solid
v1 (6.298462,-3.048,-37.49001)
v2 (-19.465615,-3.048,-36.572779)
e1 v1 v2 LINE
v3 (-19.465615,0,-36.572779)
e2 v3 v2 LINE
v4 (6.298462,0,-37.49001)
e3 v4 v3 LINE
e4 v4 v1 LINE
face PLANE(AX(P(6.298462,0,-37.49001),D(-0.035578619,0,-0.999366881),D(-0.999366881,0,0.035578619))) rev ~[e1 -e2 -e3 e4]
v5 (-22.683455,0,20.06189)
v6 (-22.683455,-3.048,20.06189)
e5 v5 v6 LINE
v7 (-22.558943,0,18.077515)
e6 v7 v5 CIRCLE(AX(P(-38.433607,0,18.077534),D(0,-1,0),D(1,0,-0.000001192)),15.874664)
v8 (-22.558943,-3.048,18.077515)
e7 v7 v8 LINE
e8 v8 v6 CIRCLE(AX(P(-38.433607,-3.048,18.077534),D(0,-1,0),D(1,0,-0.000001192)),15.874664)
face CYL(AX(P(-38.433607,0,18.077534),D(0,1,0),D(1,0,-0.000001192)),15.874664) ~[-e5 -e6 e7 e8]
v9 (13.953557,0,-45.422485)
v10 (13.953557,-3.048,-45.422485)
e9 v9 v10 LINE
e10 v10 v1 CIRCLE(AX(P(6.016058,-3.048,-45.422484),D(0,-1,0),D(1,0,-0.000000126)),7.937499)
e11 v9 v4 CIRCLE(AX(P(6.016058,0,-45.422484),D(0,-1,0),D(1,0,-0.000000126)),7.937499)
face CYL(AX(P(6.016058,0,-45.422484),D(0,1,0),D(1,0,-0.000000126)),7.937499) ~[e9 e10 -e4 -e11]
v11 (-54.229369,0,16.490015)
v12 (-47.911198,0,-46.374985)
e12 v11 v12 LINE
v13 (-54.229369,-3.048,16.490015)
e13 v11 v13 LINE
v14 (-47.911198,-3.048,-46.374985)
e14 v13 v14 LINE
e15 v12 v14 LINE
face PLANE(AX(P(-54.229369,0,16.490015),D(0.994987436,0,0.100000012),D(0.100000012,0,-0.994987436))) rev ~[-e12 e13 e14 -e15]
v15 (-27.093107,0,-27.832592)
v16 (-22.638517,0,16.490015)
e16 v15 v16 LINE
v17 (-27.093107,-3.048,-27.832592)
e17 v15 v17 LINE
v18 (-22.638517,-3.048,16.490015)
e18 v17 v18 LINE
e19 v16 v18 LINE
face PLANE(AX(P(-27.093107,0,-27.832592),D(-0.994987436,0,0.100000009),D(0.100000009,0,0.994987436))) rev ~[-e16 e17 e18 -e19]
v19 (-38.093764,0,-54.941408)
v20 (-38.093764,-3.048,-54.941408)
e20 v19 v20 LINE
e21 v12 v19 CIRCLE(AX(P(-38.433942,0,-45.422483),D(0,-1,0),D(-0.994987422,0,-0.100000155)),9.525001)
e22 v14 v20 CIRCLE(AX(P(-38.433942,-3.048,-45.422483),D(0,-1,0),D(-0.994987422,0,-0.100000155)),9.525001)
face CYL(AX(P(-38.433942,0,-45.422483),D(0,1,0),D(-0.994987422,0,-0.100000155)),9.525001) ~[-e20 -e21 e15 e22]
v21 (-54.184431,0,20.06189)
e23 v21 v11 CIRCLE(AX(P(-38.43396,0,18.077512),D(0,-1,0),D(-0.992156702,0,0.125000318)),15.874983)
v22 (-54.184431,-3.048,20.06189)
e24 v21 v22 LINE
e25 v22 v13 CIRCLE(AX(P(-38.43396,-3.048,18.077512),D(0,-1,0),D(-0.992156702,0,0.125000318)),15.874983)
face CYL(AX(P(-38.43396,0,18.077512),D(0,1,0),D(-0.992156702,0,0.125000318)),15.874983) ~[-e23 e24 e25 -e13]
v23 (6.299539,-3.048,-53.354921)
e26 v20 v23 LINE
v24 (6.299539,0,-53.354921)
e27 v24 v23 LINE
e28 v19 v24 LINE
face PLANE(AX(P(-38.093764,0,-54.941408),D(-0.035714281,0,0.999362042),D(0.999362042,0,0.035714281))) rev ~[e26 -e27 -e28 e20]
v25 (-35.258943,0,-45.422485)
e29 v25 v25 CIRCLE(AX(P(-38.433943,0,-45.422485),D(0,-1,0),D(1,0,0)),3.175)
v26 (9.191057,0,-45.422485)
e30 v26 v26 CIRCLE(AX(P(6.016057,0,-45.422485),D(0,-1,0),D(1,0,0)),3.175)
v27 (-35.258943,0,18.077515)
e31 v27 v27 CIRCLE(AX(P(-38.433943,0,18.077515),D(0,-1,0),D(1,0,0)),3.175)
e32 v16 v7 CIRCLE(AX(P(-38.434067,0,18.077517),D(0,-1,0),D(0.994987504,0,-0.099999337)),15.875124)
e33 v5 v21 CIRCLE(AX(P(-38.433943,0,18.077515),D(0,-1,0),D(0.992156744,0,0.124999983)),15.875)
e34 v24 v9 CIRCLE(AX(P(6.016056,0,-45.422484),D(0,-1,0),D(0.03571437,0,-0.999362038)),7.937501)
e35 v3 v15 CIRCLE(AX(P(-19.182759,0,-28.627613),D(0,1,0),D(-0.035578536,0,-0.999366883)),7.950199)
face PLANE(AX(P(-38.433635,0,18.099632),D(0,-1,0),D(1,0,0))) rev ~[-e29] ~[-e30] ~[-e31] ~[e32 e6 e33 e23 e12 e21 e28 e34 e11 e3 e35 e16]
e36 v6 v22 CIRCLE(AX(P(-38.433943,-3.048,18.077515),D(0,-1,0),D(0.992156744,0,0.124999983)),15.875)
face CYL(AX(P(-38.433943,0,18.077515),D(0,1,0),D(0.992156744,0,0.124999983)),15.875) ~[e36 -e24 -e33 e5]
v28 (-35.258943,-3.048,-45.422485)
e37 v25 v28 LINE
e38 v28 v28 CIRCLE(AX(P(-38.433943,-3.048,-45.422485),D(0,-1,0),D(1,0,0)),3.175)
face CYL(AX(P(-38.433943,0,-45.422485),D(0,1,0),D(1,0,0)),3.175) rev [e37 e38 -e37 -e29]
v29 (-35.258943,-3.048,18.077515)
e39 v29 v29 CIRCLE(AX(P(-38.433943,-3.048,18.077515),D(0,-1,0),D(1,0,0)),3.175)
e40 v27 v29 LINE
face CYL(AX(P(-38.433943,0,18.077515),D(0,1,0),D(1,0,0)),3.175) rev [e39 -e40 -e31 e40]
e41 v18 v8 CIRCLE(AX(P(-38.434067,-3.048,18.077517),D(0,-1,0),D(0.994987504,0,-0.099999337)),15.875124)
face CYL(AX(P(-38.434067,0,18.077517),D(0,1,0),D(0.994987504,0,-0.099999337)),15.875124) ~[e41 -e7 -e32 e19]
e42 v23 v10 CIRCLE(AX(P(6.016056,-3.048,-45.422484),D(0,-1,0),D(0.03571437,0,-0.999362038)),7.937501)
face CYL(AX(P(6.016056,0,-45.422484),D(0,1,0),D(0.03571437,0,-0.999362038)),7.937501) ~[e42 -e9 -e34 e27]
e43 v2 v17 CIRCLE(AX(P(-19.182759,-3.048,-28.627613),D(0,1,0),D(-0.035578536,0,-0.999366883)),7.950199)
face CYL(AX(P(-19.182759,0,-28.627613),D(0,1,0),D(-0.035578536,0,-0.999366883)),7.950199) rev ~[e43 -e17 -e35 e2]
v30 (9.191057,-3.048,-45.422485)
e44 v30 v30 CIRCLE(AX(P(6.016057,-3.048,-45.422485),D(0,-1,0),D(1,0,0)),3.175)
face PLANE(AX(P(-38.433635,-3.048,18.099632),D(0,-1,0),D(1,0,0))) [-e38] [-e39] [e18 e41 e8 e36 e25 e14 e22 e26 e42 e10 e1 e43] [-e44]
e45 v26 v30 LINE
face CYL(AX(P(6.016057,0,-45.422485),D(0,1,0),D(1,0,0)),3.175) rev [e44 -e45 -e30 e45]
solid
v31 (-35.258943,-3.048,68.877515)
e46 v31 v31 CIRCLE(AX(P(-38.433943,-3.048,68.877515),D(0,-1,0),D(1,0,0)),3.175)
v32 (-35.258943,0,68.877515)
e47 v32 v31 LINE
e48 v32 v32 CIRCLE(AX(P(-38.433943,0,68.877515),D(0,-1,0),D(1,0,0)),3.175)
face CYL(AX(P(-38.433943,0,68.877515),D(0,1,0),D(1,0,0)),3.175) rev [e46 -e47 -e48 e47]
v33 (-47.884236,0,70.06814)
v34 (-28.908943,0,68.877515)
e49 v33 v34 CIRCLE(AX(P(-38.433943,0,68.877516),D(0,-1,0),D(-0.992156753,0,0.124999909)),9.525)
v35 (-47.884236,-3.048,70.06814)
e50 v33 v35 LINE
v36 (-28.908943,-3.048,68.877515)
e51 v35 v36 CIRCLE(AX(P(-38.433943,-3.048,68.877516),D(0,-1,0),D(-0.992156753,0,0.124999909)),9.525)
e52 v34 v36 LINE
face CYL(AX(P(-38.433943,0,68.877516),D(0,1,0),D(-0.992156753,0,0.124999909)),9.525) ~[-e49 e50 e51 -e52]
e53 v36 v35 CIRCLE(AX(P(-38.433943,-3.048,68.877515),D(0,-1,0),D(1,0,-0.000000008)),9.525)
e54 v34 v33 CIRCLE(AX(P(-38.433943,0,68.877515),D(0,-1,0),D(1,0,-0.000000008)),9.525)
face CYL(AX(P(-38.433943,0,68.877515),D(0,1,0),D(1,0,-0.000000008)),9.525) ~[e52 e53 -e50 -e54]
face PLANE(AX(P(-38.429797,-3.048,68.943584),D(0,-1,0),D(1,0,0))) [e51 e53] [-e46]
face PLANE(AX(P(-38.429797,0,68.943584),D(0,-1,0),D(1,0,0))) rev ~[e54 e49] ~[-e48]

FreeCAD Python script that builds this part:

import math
import FreeCAD as App
import Part
import Sketcher

V = App.Vector
Q = App.Units.Quantity

doc = App.newDocument("Part")
params = doc.addObject("Spreadsheet::Sheet", "Params")
for row, (alias, value) in enumerate([
    ("sketch1_diameter", "0.25 in"),
    ("sketch1_diameter2", "0.25 in"),
    ("sketch1_diameter3", "0.25 in"),
    ("sketch1_diameter4", "0.25 in"),
    ("sketch1_radius", "0.375 in"),
    ("pad1_length", "0.12 in"),
], start=1):
    params.set(f"A{row}", alias)
    params.set(f"B{row}", "=" + value)
    params.setAlias(f"B{row}", alias)

body = doc.addObject("PartDesign::Body", "Body")
body.AllowCompound = True

# Sketch on XZ plane
sketch1 = body.newObject("Sketcher::SketchObject", "Sketch")
sketch1.AttachmentSupport = (doc.getObject("XZ_Plane"), [""])
sketch1.MapMode = "FlatFace"
sketch1.addGeometry(Part.ArcOfCircle(Part.Circle(V(-38.433943, 68.877516, 0), V(0, 0, 1), 9.525), math.radians(172.819249), math.radians(359.999995)), False)
sketch1.addGeometry(Part.ArcOfCircle(Part.Circle(V(-38.433943, 68.877515, 0), V(0, 0, 1), 9.525), math.radians(0), math.radians(172.819245)), False)
sketch1.addGeometry(Part.Circle(V(-38.433943, 68.877515, 0), V(0, 0, 1), 3.175), False)
sketch1.addGeometry(Part.ArcOfCircle(Part.Circle(V(-38.433943, 18.077515, 0), V(0, 0, 1), 15.875), math.radians(7.180755), math.radians(172.819245)), False)
sketch1.addGeometry(Part.ArcOfCircle(Part.Circle(V(-38.43396, 18.077512, 0), V(0, 0, 1), 15.874983), math.radians(172.819226), math.radians(185.739166)), False)
sketch1.addGeometry(Part.LineSegment(V(-54.229369, 16.490015, 0), V(-47.911198, -46.374985, 0)), False)
sketch1.addGeometry(Part.ArcOfCircle(Part.Circle(V(-38.433942, -45.422483, 0), V(0, 0, 1), 9.525001), math.radians(-174.260821), math.radians(-87.953292)), False)
sketch1.addGeometry(Part.LineSegment(V(-38.093764, -54.941408, 0), V(6.299539, -53.354921, 0)), False)
sketch1.addGeometry(Part.ArcOfCircle(Part.Circle(V(6.016056, -45.422484, 0), V(0, 0, 1), 7.937501), math.radians(-87.953282), math.radians(-0.000007)), False)
sketch1.addGeometry(Part.ArcOfCircle(Part.Circle(V(6.016058, -45.422484, 0), V(0, 0, 1), 7.937499), math.radians(-0.000007), math.radians(87.961072)), False)
sketch1.addGeometry(Part.LineSegment(V(6.298462, -37.49001, 0), V(-19.465615, -36.572779, 0)), False)
sketch1.addGeometry(Part.ArcOfCircle(Part.Circle(V(-19.182759, -28.627613, 0), V(0, 0, 1), 7.950199), math.radians(174.260822), math.radians(267.96107)), False)
sketch1.addGeometry(Part.LineSegment(V(-27.093107, -27.832592, 0), V(-22.638517, 16.490015, 0)), False)
sketch1.addGeometry(Part.ArcOfCircle(Part.Circle(V(-38.434067, 18.077517, 0), V(0, 0, 1), 15.875124), math.radians(-5.739132), math.radians(-0.000007)), False)
sketch1.addGeometry(Part.ArcOfCircle(Part.Circle(V(-38.433607, 18.077534, 0), V(0, 0, 1), 15.874664), math.radians(-0.000068), math.radians(7.18084)), False)
sketch1.addGeometry(Part.Circle(V(-38.433943, -45.422485, 0), V(0, 0, 1), 3.175), False)
sketch1.addGeometry(Part.Circle(V(6.016057, -45.422485, 0), V(0, 0, 1), 3.175), False)
sketch1.addGeometry(Part.Circle(V(-38.433943, 18.077515, 0), V(0, 0, 1), 3.175), False)
sketch1.addConstraint(Sketcher.Constraint("Coincident", 0, 1, 1, 2))
sketch1.addConstraint(Sketcher.Constraint("Coincident", 1, 1, 0, 2))
sketch1.addConstraint(Sketcher.Constraint("Coincident", 3, 2, 4, 1))
sketch1.addConstraint(Sketcher.Constraint("Coincident", 4, 2, 5, 1))
sketch1.addConstraint(Sketcher.Constraint("Coincident", 5, 2, 6, 1))
sketch1.addConstraint(Sketcher.Constraint("Coincident", 6, 2, 7, 1))
sketch1.addConstraint(Sketcher.Constraint("Coincident", 7, 2, 8, 1))
sketch1.addConstraint(Sketcher.Constraint("Coincident", 8, 2, 9, 1))
sketch1.addConstraint(Sketcher.Constraint("Coincident", 9, 2, 10, 1))
sketch1.addConstraint(Sketcher.Constraint("Coincident", 10, 2, 11, 2))
sketch1.addConstraint(Sketcher.Constraint("Coincident", 11, 1, 12, 1))
sketch1.addConstraint(Sketcher.Constraint("Coincident", 12, 2, 13, 1))
sketch1.addConstraint(Sketcher.Constraint("Coincident", 13, 2, 14, 1))
sketch1.addConstraint(Sketcher.Constraint("Coincident", 14, 2, 3, 1))
sketch1.addConstraint(Sketcher.Constraint("Coincident", 2, 3, 0, 3))
sketch1.addConstraint(Sketcher.Constraint("Coincident", 9, 3, 8, 3))
sketch1.addConstraint(Sketcher.Constraint("Coincident", 15, 3, 6, 3))
sketch1.addConstraint(Sketcher.Constraint("Coincident", 16, 3, 8, 3))
sketch1.addConstraint(Sketcher.Constraint("Coincident", 17, 3, 3, 3))
sketch1.addConstraint(Sketcher.Constraint("Diameter", 2, Q("0.25 in")))
sketch1.addConstraint(Sketcher.Constraint("Diameter", 15, Q("0.25 in")))
sketch1.addConstraint(Sketcher.Constraint("Diameter", 16, Q("0.25 in")))
sketch1.addConstraint(Sketcher.Constraint("Diameter", 17, Q("0.25 in")))
sketch1.addConstraint(Sketcher.Constraint("Radius", 0, Q("0.375 in")))
sketch1.addConstraint(Sketcher.Constraint("Radius", 1, Q("0.375 in")))
sketch1.addConstraint(Sketcher.Constraint("Radius", 3, Q("0.625 in")))
sketch1.addConstraint(Sketcher.Constraint("Radius", 6, Q("0.375 in")))
sketch1.addConstraint(Sketcher.Constraint("Radius", 8, Q("0.3125 in")))
sketch1.addConstraint(Sketcher.Constraint("Radius", 11, Q("0.313 in")))
sketch1.addConstraint(Sketcher.Constraint("DistanceY", 3, 3, 2, 3, Q("2 in")))
sketch1.addConstraint(Sketcher.Constraint("DistanceY", 4, 3, 2, 3, Q("2.0000001 in")))
sketch1.addConstraint(Sketcher.Constraint("DistanceY", 13, 3, 2, 3, Q("1.9999999 in")))
sketch1.addConstraint(Sketcher.Constraint("DistanceY", 6, 3, 4, 3, Q("2.4999998 in")))
sketch1.addConstraint(Sketcher.Constraint("DistanceY", 8, 3, 3, 3, Q("2.5 in")))
sketch1.addConstraint(Sketcher.Constraint("DistanceX", 6, 3, 8, 3, Q("1.7499999 in")))
sketch1.addConstraint(Sketcher.Constraint("DistanceX", 3, 3, 8, 3, Q("1.75 in")))
sketch1.addConstraint(Sketcher.Constraint("DistanceX", 2, 3, 8, 3, Q("1.75 in")))
sketch1.addConstraint(Sketcher.Constraint("DistanceY", 0, 3, 0, 1, Q("0.046875 in")))
sketch1.addConstraint(Sketcher.Constraint("DistanceY", 1, 1, 0, 1, Q("0.046875 in")))
sketch1.addConstraint(Sketcher.Constraint("DistanceY", 13, 3, 3, 2, Q("0.0781249 in")))
sketch1.addConstraint(Sketcher.Constraint("DistanceY", 4, 2, 3, 2, Q("0.140625 in")))
sketch1.addConstraint(Sketcher.Constraint("DistanceY", 12, 2, 17, 3, Q("0.0625 in")))
sketch1.addConstraint(Sketcher.Constraint("DistanceY", 12, 2, 13, 2, Q("0.0625 in")))
sketch1.addConstraint(Sketcher.Constraint("DistanceX", 17, 3, 13, 2, Q("0.625 in")))
sketch1.addConstraint(Sketcher.Constraint("DistanceY", 13, 2, 14, 2, Q("0.078125 in")))
sketch1.addConstraint(Sketcher.Constraint("Radius", 4, 15.874983))
sketch1.addConstraint(Sketcher.Constraint("Radius", 13, 15.875124))
sketch1.addConstraint(Sketcher.Constraint("Radius", 14, 15.874664))
sketch1.addConstraint(Sketcher.Constraint("DistanceY", 5, 2, 15, 3, Q("0.0375 in")))
sketch1.addConstraint(Sketcher.Constraint("DistanceY", 11, 3, 11, 1, Q("0.0313 in")))
sketch1.addConstraint(Sketcher.Constraint("Distance", 10, 25.780399))
sketch1.addConstraint(Sketcher.Constraint("DistanceX", 4, 3, 11, 3, 19.251202))
sketch1.addConstraint(Sketcher.Constraint("DistanceX", 4, 3, -1, 1, 38.43396))
sketch1.addConstraint(Sketcher.Constraint("DistanceY", -1, 1, 0, 1, 70.06814))
sketch1.addConstraint(Sketcher.Constraint("DistanceX", -1, 1, 7, 2, 6.299539))
sketch1.addConstraint(Sketcher.Constraint("DistanceY", 9, 2, -1, 1, 37.49001))
sketch1.addConstraint(Sketcher.Constraint("DistanceY", 10, 2, -1, 1, 36.572779))
sketch1.addConstraint(Sketcher.Constraint("DistanceX", 15, 3, 6, 2, 0.340179))
sketch1.addConstraint(Sketcher.Constraint("DistanceY", 8, 2, -1, 1, 45.422485))
sketch1.setExpression("Constraints[19]", "Params.sketch1_diameter")
sketch1.setExpression("Constraints[20]", "Params.sketch1_diameter2")
sketch1.setExpression("Constraints[21]", "Params.sketch1_diameter3")
sketch1.setExpression("Constraints[22]", "Params.sketch1_diameter4")
sketch1.setExpression("Constraints[23]", "Params.sketch1_radius")
pad1 = body.newObject("PartDesign::Pad", "Pad")
pad1.Profile = sketch1
pad1.setExpression("Length", "Params.pad1_length")

doc.recompute()
